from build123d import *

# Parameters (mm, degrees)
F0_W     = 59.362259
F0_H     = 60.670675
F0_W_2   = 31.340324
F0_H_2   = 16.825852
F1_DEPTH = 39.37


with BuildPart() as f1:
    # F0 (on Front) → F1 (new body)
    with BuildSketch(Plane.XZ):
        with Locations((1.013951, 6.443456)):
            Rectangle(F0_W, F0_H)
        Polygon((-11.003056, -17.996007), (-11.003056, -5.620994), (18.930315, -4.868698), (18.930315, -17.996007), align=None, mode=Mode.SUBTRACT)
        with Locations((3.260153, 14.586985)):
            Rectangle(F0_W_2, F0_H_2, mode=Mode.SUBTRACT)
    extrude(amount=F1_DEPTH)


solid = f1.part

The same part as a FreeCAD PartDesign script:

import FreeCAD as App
import Part
import Sketcher
from FreeCAD import Vector
Q = App.Units.Quantity


def add_polygon(sketch, points):
    """Adds a closed chain of lines whose ends are joined by coincident constraints."""
    first, n = sketch.GeometryCount, len(points)
    for a, b in zip(points, points[1:] + points[:1]):
        sketch.addGeometry(Part.LineSegment(App.Vector(*a, 0), App.Vector(*b, 0)), False)
    for i in range(n):
        sketch.addConstraint(Sketcher.Constraint("Coincident", first + i, 2, first + (i + 1) % n, 1))

doc = App.newDocument("Part")
body = doc.addObject("PartDesign::Body", "Body")

# Sketch on XZ plane
sketch1 = body.newObject("Sketcher::SketchObject", "Sketch")
sketch1.AttachmentSupport = (doc.getObject("XZ_Plane"), [""])
sketch1.MapMode = "FlatFace"
add_polygon(sketch1, [(-29, 37), (-29, -24), (31, -24), (31, 37)])  # lines 0-3
add_polygon(sketch1, [(19, -18), (-11, -18), (-11, -6), (19, -5)])  # lines 4-7
add_polygon(sketch1, [(19, 6), (-12, 6), (-12, 23), (19, 23)])  # lines 8-11
sketch1.addConstraint([
    Sketcher.Constraint("Vertical", 0),
    Sketcher.Constraint("Horizontal", 1),
    Sketcher.Constraint("Vertical", 2),
    Sketcher.Constraint("Horizontal", 3),
    Sketcher.Constraint("Horizontal", 4),
    Sketcher.Constraint("Vertical", 5),
    Sketcher.Constraint("Vertical", 7),
    Sketcher.Constraint("Horizontal", 8),
    Sketcher.Constraint("Vertical", 9),
    Sketcher.Constraint("Horizontal", 10),
    Sketcher.Constraint("Vertical", 11),
    Sketcher.Constraint("Vertical", 7, 2, 10, 2),
    Sketcher.Constraint("DistanceX", 1, 1, 1, 2, Q("59.362259 mm")),
    Sketcher.Constraint("DistanceX", 4, 2, 4, 1, Q("29.933371 mm")),
    Sketcher.Constraint("DistanceY", 7, 2, 7, 1, Q("13.127309 mm")),
    Sketcher.Constraint("DistanceY", 6, 2, -1, 1, Q("4.868698 mm")),
    Sketcher.Constraint("DistanceY", 4, 2, 3, 2, Q("54.7748 mm")),
    Sketcher.Constraint("DistanceX", 8, 2, 8, 1, Q("31.340324 mm")),
    Sketcher.Constraint("DistanceY", 0, 2, 0, 1, Q("60.670675 mm")),
    Sketcher.Constraint("DistanceY", 5, 1, 5, 2, Q("12.375013 mm")),
    Sketcher.Constraint("DistanceY", 9, 1, 9, 2, Q("16.825852 mm")),
    Sketcher.Constraint("DistanceX", 0, 2, -1, 1, Q("28.667178 mm")),
    Sketcher.Constraint("DistanceX", 8, 2, -1, 1, Q("12.410009 mm")),
    Sketcher.Constraint("DistanceY", -1, 1, 8, 2, Q("6.174059 mm")),
])
pad1 = body.newObject("PartDesign::Pad", "Pad")
pad1.Profile = sketch1
pad1.Length = Q("1.55 in")

doc.recompute()
